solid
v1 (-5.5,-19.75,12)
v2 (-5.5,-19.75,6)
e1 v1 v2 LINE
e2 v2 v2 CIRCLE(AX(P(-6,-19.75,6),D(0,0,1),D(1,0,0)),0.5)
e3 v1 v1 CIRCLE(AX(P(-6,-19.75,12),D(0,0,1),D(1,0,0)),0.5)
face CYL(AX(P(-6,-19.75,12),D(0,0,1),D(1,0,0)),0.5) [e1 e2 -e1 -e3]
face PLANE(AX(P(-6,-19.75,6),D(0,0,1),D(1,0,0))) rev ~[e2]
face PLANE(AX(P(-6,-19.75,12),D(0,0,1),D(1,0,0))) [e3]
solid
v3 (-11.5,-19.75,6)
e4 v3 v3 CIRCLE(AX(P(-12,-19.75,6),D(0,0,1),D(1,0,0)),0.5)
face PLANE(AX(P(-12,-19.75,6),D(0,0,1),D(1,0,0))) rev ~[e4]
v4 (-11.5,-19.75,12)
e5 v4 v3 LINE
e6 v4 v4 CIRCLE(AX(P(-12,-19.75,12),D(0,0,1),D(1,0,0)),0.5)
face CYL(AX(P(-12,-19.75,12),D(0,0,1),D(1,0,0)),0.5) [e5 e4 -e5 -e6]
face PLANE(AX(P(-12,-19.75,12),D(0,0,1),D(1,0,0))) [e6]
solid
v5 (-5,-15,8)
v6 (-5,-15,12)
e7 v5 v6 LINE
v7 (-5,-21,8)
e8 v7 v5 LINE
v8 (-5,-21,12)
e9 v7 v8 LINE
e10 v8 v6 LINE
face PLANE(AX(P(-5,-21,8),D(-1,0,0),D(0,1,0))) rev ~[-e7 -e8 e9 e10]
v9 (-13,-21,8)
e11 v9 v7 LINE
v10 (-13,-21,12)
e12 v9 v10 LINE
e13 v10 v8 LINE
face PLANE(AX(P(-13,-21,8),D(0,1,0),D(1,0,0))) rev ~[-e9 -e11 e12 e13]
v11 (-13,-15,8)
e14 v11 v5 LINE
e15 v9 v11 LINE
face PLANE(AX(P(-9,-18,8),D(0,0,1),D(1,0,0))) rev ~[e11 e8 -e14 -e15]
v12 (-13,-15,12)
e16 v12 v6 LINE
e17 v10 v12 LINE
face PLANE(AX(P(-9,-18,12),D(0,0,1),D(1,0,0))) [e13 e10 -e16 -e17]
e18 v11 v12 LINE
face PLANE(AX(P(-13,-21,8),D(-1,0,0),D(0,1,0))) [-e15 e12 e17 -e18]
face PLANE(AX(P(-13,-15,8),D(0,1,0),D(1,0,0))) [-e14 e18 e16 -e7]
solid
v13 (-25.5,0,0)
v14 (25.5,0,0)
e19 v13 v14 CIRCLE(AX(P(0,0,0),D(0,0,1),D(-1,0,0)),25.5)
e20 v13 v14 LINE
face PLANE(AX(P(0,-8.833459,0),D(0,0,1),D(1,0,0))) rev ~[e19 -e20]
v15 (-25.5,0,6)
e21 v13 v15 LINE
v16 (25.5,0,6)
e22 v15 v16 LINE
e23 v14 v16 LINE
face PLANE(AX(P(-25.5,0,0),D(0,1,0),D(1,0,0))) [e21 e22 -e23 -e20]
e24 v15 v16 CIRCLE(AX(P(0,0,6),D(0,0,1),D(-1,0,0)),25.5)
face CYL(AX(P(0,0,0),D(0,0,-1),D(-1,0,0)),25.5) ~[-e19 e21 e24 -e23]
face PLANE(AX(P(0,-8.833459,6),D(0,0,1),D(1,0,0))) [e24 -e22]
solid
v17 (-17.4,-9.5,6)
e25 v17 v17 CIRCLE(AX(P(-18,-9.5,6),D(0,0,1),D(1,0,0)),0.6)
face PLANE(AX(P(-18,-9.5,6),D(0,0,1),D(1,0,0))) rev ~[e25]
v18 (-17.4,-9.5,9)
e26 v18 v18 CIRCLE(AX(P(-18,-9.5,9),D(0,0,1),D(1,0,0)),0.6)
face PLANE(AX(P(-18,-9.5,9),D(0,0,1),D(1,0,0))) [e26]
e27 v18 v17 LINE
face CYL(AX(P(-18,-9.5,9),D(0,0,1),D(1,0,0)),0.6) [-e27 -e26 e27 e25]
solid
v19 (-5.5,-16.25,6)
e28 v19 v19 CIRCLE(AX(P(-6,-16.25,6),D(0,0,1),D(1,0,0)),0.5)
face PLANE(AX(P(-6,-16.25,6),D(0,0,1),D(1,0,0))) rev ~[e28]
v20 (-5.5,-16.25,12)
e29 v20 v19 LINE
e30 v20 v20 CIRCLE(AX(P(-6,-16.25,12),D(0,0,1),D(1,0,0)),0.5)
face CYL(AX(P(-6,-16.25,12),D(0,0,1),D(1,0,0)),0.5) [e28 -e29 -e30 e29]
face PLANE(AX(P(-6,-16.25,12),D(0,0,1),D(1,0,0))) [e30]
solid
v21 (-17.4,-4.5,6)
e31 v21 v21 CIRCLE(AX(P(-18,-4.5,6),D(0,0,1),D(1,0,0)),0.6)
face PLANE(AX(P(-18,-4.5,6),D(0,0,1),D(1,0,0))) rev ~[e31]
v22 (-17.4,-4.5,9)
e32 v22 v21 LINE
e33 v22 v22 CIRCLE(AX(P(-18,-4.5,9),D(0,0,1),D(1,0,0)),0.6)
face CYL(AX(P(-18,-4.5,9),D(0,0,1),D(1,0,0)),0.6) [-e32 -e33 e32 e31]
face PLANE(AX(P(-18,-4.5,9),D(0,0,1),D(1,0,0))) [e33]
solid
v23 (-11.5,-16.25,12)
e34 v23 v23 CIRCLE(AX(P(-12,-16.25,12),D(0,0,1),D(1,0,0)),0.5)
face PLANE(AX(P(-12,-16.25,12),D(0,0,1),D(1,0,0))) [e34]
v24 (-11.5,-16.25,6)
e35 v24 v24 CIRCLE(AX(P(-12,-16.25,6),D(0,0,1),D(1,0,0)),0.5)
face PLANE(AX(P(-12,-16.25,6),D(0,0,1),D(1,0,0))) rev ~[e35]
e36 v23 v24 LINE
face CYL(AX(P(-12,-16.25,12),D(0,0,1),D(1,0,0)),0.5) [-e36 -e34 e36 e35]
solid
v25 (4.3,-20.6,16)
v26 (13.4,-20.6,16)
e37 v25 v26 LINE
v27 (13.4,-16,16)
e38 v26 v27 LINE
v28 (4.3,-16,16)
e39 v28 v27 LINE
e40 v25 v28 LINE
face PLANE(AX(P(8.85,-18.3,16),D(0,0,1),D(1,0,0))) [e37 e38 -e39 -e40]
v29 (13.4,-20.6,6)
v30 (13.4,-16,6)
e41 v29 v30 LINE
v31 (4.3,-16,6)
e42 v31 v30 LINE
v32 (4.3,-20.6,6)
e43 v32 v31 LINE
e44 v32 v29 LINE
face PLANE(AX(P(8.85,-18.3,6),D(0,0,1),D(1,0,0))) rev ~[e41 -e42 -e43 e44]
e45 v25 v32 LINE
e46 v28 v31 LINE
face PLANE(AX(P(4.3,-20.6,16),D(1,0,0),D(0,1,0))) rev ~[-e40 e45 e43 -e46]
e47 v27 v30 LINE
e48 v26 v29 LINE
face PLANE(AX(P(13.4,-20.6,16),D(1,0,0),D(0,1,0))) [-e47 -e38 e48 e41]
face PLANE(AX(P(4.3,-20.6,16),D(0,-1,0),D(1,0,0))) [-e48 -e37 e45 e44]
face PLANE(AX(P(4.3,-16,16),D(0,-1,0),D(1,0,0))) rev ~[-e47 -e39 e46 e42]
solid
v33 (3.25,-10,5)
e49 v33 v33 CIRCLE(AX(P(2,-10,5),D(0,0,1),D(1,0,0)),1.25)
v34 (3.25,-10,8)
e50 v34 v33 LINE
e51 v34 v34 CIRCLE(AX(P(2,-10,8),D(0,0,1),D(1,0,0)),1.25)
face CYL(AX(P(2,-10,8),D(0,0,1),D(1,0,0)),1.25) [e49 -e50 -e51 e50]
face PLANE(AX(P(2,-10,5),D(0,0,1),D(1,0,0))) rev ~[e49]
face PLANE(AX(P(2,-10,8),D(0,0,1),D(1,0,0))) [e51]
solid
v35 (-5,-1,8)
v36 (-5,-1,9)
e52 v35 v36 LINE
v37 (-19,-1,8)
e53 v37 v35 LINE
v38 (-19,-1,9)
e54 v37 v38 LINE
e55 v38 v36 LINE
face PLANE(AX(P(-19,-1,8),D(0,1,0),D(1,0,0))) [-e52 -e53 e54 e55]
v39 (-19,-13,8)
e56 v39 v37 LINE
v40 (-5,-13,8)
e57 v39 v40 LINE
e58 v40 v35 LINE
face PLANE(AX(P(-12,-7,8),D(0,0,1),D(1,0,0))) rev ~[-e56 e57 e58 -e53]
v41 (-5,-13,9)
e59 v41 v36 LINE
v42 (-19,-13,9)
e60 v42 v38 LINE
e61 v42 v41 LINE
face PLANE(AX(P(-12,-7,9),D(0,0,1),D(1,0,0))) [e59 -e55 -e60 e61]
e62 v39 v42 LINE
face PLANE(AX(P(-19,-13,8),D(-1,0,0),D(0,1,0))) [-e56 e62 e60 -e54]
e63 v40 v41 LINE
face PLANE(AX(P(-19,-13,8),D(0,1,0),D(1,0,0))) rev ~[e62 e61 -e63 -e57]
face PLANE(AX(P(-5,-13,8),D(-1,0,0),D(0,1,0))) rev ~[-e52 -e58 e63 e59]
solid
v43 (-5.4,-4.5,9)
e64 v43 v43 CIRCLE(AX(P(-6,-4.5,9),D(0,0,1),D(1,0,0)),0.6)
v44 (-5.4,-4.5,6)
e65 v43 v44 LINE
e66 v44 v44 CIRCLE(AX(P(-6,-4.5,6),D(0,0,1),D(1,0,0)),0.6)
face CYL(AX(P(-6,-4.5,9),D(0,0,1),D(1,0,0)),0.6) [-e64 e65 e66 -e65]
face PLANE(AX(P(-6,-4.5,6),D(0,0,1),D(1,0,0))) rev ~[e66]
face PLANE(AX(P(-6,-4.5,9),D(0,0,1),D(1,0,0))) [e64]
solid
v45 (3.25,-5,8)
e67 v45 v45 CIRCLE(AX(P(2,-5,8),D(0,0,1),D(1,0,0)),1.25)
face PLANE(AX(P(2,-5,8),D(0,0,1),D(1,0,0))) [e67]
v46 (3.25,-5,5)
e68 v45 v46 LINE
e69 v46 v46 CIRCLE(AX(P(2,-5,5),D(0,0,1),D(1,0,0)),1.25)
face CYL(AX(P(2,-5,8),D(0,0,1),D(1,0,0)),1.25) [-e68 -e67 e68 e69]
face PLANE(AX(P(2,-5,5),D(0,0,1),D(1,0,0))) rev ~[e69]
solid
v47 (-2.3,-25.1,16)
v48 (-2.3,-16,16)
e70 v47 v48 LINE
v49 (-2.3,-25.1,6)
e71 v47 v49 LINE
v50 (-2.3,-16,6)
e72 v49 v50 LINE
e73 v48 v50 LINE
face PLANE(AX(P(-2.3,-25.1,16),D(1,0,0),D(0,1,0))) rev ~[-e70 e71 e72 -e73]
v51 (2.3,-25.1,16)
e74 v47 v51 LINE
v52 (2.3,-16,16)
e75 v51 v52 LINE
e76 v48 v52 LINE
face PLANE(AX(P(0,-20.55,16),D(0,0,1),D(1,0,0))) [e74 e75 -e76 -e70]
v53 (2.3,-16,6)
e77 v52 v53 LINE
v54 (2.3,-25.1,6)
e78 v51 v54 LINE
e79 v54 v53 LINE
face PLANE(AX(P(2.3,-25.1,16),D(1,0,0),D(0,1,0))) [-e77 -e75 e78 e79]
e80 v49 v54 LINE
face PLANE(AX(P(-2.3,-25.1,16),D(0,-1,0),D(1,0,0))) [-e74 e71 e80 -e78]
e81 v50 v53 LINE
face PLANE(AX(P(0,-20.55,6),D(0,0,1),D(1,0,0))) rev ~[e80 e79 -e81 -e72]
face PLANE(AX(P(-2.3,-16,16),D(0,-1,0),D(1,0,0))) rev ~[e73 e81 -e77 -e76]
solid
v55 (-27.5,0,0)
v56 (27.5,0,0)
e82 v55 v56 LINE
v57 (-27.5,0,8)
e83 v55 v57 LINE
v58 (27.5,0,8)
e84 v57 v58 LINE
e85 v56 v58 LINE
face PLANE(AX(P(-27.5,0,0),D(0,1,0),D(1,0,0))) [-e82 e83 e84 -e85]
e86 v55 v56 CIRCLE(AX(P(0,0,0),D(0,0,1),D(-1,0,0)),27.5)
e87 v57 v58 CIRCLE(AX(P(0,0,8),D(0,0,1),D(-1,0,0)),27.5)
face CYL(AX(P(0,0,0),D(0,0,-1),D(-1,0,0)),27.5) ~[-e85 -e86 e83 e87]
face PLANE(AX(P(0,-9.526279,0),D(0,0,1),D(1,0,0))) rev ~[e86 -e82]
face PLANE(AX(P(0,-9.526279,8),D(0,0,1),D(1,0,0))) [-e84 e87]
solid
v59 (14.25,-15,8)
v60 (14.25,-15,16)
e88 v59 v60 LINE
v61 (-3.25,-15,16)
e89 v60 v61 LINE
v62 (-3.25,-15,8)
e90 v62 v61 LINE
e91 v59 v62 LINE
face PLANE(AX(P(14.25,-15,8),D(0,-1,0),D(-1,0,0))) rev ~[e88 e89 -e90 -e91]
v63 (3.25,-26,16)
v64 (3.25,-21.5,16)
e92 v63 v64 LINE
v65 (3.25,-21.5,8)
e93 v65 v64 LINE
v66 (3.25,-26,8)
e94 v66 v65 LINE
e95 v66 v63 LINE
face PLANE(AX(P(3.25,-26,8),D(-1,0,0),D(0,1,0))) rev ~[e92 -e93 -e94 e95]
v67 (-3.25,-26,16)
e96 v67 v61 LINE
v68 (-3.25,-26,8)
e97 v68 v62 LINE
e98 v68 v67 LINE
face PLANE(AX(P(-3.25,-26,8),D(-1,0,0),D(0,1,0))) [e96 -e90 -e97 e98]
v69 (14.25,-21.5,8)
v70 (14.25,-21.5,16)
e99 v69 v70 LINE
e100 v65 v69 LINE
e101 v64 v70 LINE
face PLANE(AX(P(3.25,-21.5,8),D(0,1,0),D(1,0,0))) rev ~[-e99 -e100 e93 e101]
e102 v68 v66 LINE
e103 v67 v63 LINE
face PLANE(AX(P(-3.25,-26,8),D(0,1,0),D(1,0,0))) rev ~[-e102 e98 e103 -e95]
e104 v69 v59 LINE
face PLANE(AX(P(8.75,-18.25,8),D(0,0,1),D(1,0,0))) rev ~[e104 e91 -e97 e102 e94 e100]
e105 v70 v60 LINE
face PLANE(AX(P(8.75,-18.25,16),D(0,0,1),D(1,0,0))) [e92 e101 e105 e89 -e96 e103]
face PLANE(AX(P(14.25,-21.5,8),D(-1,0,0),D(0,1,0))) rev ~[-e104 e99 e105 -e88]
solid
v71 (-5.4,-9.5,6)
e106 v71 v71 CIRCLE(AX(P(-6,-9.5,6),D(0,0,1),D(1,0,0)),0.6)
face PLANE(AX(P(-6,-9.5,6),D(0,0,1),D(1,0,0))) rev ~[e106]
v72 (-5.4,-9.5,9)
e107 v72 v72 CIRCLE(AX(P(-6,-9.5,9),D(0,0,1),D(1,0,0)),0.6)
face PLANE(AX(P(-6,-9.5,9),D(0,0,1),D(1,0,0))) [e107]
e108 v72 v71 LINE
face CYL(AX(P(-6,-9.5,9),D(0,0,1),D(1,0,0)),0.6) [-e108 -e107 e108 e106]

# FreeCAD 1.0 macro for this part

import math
import FreeCAD as App
import Part
import Sketcher
from FreeCAD import Vector
Q = App.Units.Quantity


def add_polygon(sketch, points):
    """Adds a closed chain of lines whose ends are joined by coincident constraints."""
    first, n = sketch.GeometryCount, len(points)
    for a, b in zip(points, points[1:] + points[:1]):
        sketch.addGeometry(Part.LineSegment(App.Vector(*a, 0), App.Vector(*b, 0)), False)
    for i in range(n):
        sketch.addConstraint(Sketcher.Constraint("Coincident", first + i, 2, first + (i + 1) % n, 1))

doc = App.newDocument("Part")
body = doc.addObject("PartDesign::Body", "Body")

sketch1 = body.newObject("Sketcher::SketchObject", "Sketch")
sketch1.AttachmentSupport = (doc.getObject("XY_Plane"), [""])
sketch1.MapMode = "FlatFace"
sketch1.addGeometry([
    Part.ArcOfCircle(Part.Circle(Vector(0, 0, 0), Vector(0, 0, 1), 28), math.radians(180), math.radians(360)),
    Part.LineSegment(Vector(28, 0, 0), Vector(-28, 0, 0)),
], False)
sketch1.addConstraint([
    Sketcher.Constraint("Coincident", 0, 1, 1, 2),
    Sketcher.Constraint("Coincident", 1, 1, 0, 2),
    Sketcher.Constraint("Horizontal", 1),
    Sketcher.Constraint("Coincident", 0, 3, -1, 1),
    Sketcher.Constraint("PointOnObject", 0, 1, -1),
    Sketcher.Constraint("Radius", 0, Q("27.5 mm")),
])
pad1 = body.newObject("PartDesign::Pad", "Pad")
pad1.Profile = sketch1
pad1.Length = 8
body2 = doc.addObject("PartDesign::Body", "Body001")

sketch2 = body2.newObject("Sketcher::SketchObject", "Sketch001")
sketch2.AttachmentSupport = (doc.getObject("XY_Plane001"), [""])
sketch2.MapMode = "FlatFace"
sketch2.addGeometry([
    Part.ArcOfCircle(Part.Circle(Vector(0, 0, 0), Vector(0, 0, 1), 26), math.radians(180), math.radians(360)),
    Part.LineSegment(Vector(26, 0, 0), Vector(-26, 0, 0)),
], False)
sketch2.addConstraint([
    Sketcher.Constraint("Coincident", 0, 1, 1, 2),
    Sketcher.Constraint("Coincident", 1, 1, 0, 2),
    Sketcher.Constraint("Horizontal", 1),
    Sketcher.Constraint("Coincident", 0, 3, -1, 1),
    Sketcher.Constraint("PointOnObject", 0, 1, -1),
    Sketcher.Constraint("Radius", 0, Q("25.5 mm")),
])
pad2 = body2.newObject("PartDesign::Pad", "Pad001")
pad2.Profile = sketch2
pad2.Length = 6
body3 = doc.addObject("PartDesign::Body", "Body002")

sketch3 = body3.newObject("Sketcher::SketchObject", "Sketch002")
sketch3.AttachmentSupport = (doc.getObject("XY_Plane002"), [""])
sketch3.MapMode = "FlatFace"
sketch3.AttachmentOffset = App.Placement(Vector(0, 0, 8), App.Rotation())
add_polygon(sketch3, [(-19, -1), (-19, -13), (-5, -13), (-5, -1)])
sketch3.addConstraint([
    Sketcher.Constraint("Vertical", 0),
    Sketcher.Constraint("Horizontal", 1),
    Sketcher.Constraint("Vertical", 2),
    Sketcher.Constraint("Horizontal", 3),
    Sketcher.Constraint("DistanceX", 1, 1, 1, 2, Q("14 mm")),
    Sketcher.Constraint("DistanceY", 0, 2, 0, 1, Q("12 mm")),
    Sketcher.Constraint("DistanceX", 0, 2, -1, 1, Q("19 mm")),
    Sketcher.Constraint("DistanceY", 0, 2, -1, 1, Q("13 mm")),
])
pad3 = body3.newObject("PartDesign::Pad", "Pad002")
pad3.Profile = sketch3
pad3.Length = 1
body4 = doc.addObject("PartDesign::Body", "Body003")

sketch4 = body4.newObject("Sketcher::SketchObject", "Sketch003")
sketch4.AttachmentSupport = (doc.getObject("XY_Plane003"), [""])
sketch4.MapMode = "FlatFace"
sketch4.AttachmentOffset = App.Placement(Vector(0, 0, 8), App.Rotation())
add_polygon(sketch4, [(3.2, -21.5), (14.2, -21.5), (14.2, -15), (-3.2, -15), (-3.2, -26), (3.2, -26)])
sketch4.addConstraint([
    Sketcher.Constraint("Horizontal", 0),
    Sketcher.Constraint("Vertical", 1),
    Sketcher.Constraint("Horizontal", 2),
    Sketcher.Constraint("Vertical", 3),
    Sketcher.Constraint("Horizontal", 4),
    Sketcher.Constraint("Vertical", 5),
    Sketcher.Constraint("Equal", 4, 1),
    Sketcher.Constraint("Equal", 0, 3),
    Sketcher.Constraint("DistanceX", 0, 1, 0, 2, Q("11 mm")),
    Sketcher.Constraint("DistanceX", 2, 2, 2, 1, Q("17.5 mm")),
    Sketcher.Constraint("DistanceY", 1, 2, -1, 1, Q("15 mm")),
    Sketcher.Constraint("DistanceX", -1, 1, 0, 2, Q("14.25 mm")),
])
pad4 = body4.newObject("PartDesign::Pad", "Pad003")
pad4.Profile = sketch4
pad4.Length = 8
body5 = doc.addObject("PartDesign::Body", "Body004")

sketch5 = body5.newObject("Sketcher::SketchObject", "Sketch004")
sketch5.AttachmentSupport = (doc.getObject("XY_Plane004"), [""])
sketch5.MapMode = "FlatFace"
sketch5.AttachmentOffset = App.Placement(Vector(0, 0, 8), App.Rotation())
add_polygon(sketch5, [(-13, -15), (-13, -21), (-5, -21), (-5, -15)])
sketch5.addConstraint([
    Sketcher.Constraint("Vertical", 0),
    Sketcher.Constraint("Horizontal", 1),
    Sketcher.Constraint("Vertical", 2),
    Sketcher.Constraint("Horizontal", 3),
    Sketcher.Constraint("DistanceX", 1, 1, 1, 2, Q("8 mm")),
    Sketcher.Constraint("DistanceY", 0, 2, 0, 1, Q("6 mm")),
    Sketcher.Constraint("DistanceX", 0, 2, -1, 1, Q("13 mm")),
    Sketcher.Constraint("DistanceY", 0, 2, -1, 1, Q("21 mm")),
])
pad5 = body5.newObject("PartDesign::Pad", "Pad004")
pad5.Profile = sketch5
pad5.Length = 4
body6 = doc.addObject("PartDesign::Body", "Body005")
body6.AllowCompound = True

sketch6 = body6.newObject("Sketcher::SketchObject", "Sketch005")
sketch6.AttachmentSupport = (doc.getObject("XY_Plane005"), [""])
sketch6.MapMode = "FlatFace"
sketch6.AttachmentOffset = App.Placement(Vector(0, 0, 8), App.Rotation())
sketch6.addGeometry([
    Part.Circle(Vector(2, -10, 0), Vector(0, 0, 1), 1.2),
    Part.Circle(Vector(2, -5, 0), Vector(0, 0, 1), 1.2),
], False)
sketch6.addConstraint([
    Sketcher.Constraint("Equal", 0, 1),
    Sketcher.Constraint("Vertical", 0, 3, 1, 3),
    Sketcher.Constraint("Diameter", 0, Q("2.5 mm")),
    Sketcher.Constraint("DistanceX", -1, 1, 0, 3, Q("2 mm")),
    Sketcher.Constraint("DistanceY", 0, 3, -1, 1, Q("10 mm")),
    Sketcher.Constraint("DistanceY", 1, 3, -1, 1, Q("5 mm")),
])
pad6 = body6.newObject("PartDesign::Pad", "Pad005")
pad6.Profile = sketch6
pad6.Length = 3
pad6.Reversed = True
body7 = doc.addObject("PartDesign::Body", "Body006")
body7.AllowCompound = True

sketch7 = body7.newObject("Sketcher::SketchObject", "Sketch006")
sketch7.AttachmentSupport = (doc.getObject("XY_Plane006"), [""])
sketch7.MapMode = "FlatFace"
sketch7.AttachmentOffset = App.Placement(Vector(0, 0, 9), App.Rotation())
sketch7.addGeometry([
    Part.Circle(Vector(-18, -9.5, 0), Vector(0, 0, 1), 0.6),
    Part.Circle(Vector(-18, -4.5, 0), Vector(0, 0, 1), 0.6),
    Part.Circle(Vector(-6, -9.5, 0), Vector(0, 0, 1), 0.6),
    Part.Circle(Vector(-6, -4.5, 0), Vector(0, 0, 1), 0.6),
], False)
sketch7.addConstraint([
    Sketcher.Constraint("Equal", 0, 1),
    Sketcher.Constraint("Equal", 1, 2),
    Sketcher.Constraint("Equal", 2, 3),
    Sketcher.Constraint("Horizontal", 0, 3, 2, 3),
    Sketcher.Constraint("Horizontal", 1, 3, 3, 3),
    Sketcher.Constraint("Vertical", 0, 3, 1, 3),
    Sketcher.Constraint("Vertical", 2, 3, 3, 3),
    Sketcher.Constraint("Diameter", 0, Q("1.2 mm")),
    Sketcher.Constraint("DistanceX", 0, 3, -1, 1, Q("18 mm")),
    Sketcher.Constraint("DistanceX", 2, 3, -1, 1, Q("6 mm")),
    Sketcher.Constraint("DistanceY", 0, 3, 1, 3, Q("5 mm")),
    Sketcher.Constraint("DistanceY", 0, 3, -1, 1, Q("9.5 mm")),
])
pad7 = body7.newObject("PartDesign::Pad", "Pad006")
pad7.Profile = sketch7
pad7.Length = 3
pad7.Reversed = True
body8 = doc.addObject("PartDesign::Body", "Body007")
body8.AllowCompound = True

sketch8 = body8.newObject("Sketcher::SketchObject", "Sketch007")
sketch8.AttachmentSupport = (doc.getObject("XY_Plane007"), [""])
sketch8.MapMode = "FlatFace"
sketch8.AttachmentOffset = App.Placement(Vector(0, 0, 12), App.Rotation())
sketch8.addGeometry([
    Part.Circle(Vector(-12, -16.2, 0), Vector(0, 0, 1), 0.5),
    Part.Circle(Vector(-6, -19.8, 0), Vector(0, 0, 1), 0.5),
    Part.Circle(Vector(-6, -16.2, 0), Vector(0, 0, 1), 0.5),
    Part.Circle(Vector(-12, -19.8, 0), Vector(0, 0, 1), 0.5),
], False)
sketch8.addConstraint([
    Sketcher.Constraint("Equal", 0, 1),
    Sketcher.Constraint("Equal", 1, 2),
    Sketcher.Constraint("Equal", 2, 3),
    Sketcher.Constraint("Horizontal", 0, 3, 2, 3),
    Sketcher.Constraint("Horizontal", 1, 3, 3, 3),
    Sketcher.Constraint("Vertical", 1, 3, 2, 3),
    Sketcher.Constraint("Vertical", 0, 3, 3, 3),
    Sketcher.Constraint("Diameter", 0, Q("1 mm")),
    Sketcher.Constraint("DistanceX", 0, 3, -1, 1, Q("12 mm")),
    Sketcher.Constraint("DistanceX", 1, 3, -1, 1, Q("6 mm")),
    Sketcher.Constraint("DistanceY", 1, 3, 0, 3, Q("3.5 mm")),
    Sketcher.Constraint("DistanceY", 0, 3, -1, 1, Q("16.25 mm")),
])
pad8 = body8.newObject("PartDesign::Pad", "Pad007")
pad8.Profile = sketch8
pad8.Length = 6
pad8.Reversed = True
body9 = doc.addObject("PartDesign::Body", "Body008")
body9.AllowCompound = True

sketch9 = body9.newObject("Sketcher::SketchObject", "Sketch008")
sketch9.AttachmentSupport = (doc.getObject("XY_Plane008"), [""])
sketch9.MapMode = "FlatFace"
sketch9.AttachmentOffset = App.Placement(Vector(0, 0, 16), App.Rotation())
add_polygon(sketch9, [(-2.3, -16), (-2.3, -25.1), (2.3, -25.1), (2.3, -16)])
add_polygon(sketch9, [(4.3, -16), (4.3, -20.6), (13.4, -20.6), (13.4, -16)])
sketch9.addConstraint([
    Sketcher.Constraint("Vertical", 0),
    Sketcher.Constraint("Horizontal", 1),
    Sketcher.Constraint("Vertical", 2),
    Sketcher.Constraint("Horizontal", 3),
    Sketcher.Constraint("Vertical", 4),
    Sketcher.Constraint("Horizontal", 5),
    Sketcher.Constraint("Vertical", 6),
    Sketcher.Constraint("Horizontal", 7),
    Sketcher.Constraint("Horizontal", 3, 2, 6, 2),
    Sketcher.Constraint("Equal", 7, 0),
    Sketcher.Constraint("Equal", 3, 4),
    Sketcher.Constraint("DistanceX", 1, 1, 1, 2, Q("4.6 mm")),
    Sketcher.Constraint("DistanceX", 5, 1, 5, 2, Q("9.1 mm")),
    Sketcher.Constraint("DistanceY", 2, 2, -1, 1, Q("16 mm")),
    Sketcher.Constraint("DistanceX", 1, 2, 4, 2, Q("2 mm")),
    Sketcher.Constraint("DistanceX", 0, 2, -1, 1, Q("2.3 mm")),
])
pad9 = body9.newObject("PartDesign::Pad", "Pad008")
pad9.Profile = sketch9
pad9.Length = 10
pad9.Reversed = True

doc.recompute()
